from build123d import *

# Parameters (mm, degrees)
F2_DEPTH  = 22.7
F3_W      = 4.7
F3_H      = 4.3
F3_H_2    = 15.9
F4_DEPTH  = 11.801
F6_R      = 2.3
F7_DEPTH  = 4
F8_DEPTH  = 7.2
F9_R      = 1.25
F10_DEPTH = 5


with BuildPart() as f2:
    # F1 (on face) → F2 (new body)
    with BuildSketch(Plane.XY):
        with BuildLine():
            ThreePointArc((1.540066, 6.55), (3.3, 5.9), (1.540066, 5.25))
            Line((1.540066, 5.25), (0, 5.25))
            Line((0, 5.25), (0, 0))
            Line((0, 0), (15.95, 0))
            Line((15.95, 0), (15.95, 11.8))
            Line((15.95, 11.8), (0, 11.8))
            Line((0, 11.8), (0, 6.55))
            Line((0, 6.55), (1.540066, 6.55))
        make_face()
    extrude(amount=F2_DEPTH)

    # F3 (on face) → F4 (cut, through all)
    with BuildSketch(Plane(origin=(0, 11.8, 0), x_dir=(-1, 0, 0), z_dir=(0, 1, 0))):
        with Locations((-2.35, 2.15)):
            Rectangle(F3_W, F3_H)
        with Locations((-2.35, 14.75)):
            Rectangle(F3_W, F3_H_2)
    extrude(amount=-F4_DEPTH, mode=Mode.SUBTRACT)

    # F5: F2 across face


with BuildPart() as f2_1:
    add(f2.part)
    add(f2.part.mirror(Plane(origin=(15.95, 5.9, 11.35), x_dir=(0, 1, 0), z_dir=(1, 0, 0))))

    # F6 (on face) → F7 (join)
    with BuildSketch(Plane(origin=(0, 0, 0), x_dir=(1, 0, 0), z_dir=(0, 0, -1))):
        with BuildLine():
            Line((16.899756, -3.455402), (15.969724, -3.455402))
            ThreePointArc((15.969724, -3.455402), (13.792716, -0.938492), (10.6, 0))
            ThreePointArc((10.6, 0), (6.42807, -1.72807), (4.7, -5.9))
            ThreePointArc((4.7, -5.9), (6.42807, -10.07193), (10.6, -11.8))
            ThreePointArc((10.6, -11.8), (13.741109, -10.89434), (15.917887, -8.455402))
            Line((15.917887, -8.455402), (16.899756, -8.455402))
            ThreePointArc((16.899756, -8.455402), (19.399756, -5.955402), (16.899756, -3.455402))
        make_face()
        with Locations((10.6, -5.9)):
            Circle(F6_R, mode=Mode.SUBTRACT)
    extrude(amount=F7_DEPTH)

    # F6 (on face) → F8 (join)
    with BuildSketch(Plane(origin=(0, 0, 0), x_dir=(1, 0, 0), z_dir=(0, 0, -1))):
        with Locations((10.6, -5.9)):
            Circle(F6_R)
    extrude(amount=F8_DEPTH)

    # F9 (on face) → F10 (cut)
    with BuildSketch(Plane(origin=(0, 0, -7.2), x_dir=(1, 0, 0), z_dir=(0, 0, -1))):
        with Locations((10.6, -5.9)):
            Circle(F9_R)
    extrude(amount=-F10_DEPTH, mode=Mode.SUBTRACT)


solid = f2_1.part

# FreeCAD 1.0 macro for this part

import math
import FreeCAD as App
import Part
import Sketcher
from FreeCAD import Vector
Q = App.Units.Quantity

doc = App.newDocument("Part")
params = doc.addObject("Spreadsheet::Sheet", "Params")
for row, (alias, value) in enumerate([
    ("sketch1_radius", "1 mm"),
    ("sketch1_height", "11.8 mm"),
    ("sketch1_width", "15.95 mm"),
    ("sketch1_height2", "5.25 mm"),
    ("pad1_length", "22.7 mm"),
    ("sketch2_width", "4.7 mm"),
    ("sketch2_height", "4.3 mm"),
    ("sketch2_height2", "15.9 mm"),
    ("sketch3_diameter", "4.6 mm"),
    ("sketch3_radius", "5.9 mm"),
    ("sketch3_radius2", "2.5 mm"),
    ("pad2_length", "4 mm"),
    ("sketch4_diameter", "4.6 mm"),
    ("pad3_length", "7.2 mm"),
    ("sketch5_diameter", "2.5 mm"),
    ("pocket2_length", "5 mm"),
], start=1):
    params.set(f"A{row}", alias)
    params.set(f"B{row}", "=" + value)
    params.setAlias(f"B{row}", alias)

body = doc.addObject("PartDesign::Body", "Body")

sketch1 = body.newObject("Sketcher::SketchObject", "Sketch")
sketch1.AttachmentSupport = (doc.getObject("XY_Plane"), [""])
sketch1.MapMode = "FlatFace"
sketch1.addGeometry([
    Part.ArcOfCircle(Part.Circle(Vector(2.3, 5.9, 0), Vector(0, 0, 1), 1), math.radians(-139.458394), math.radians(139.458394)),
    Part.LineSegment(Vector(1.540066, 5.25, 0), Vector(0, 5.25, 0)),
    Part.LineSegment(Vector(0, 5.25, 0), Vector(0, 0, 0)),
    Part.LineSegment(Vector(0, 0, 0), Vector(15.95, 0, 0)),
    Part.LineSegment(Vector(15.95, 0, 0), Vector(15.95, 11.8, 0)),
    Part.LineSegment(Vector(15.95, 11.8, 0), Vector(0, 11.8, 0)),
    Part.LineSegment(Vector(0, 11.8, 0), Vector(0, 6.55, 0)),
    Part.LineSegment(Vector(0, 6.55, 0), Vector(1.540066, 6.55, 0)),
], False)
sketch1.addConstraint([
    Sketcher.Constraint("Coincident", 0, 1, 1, 1),
    Sketcher.Constraint("Coincident", 1, 2, 2, 1),
    Sketcher.Constraint("Coincident", 2, 2, 3, 1),
    Sketcher.Constraint("Coincident", 3, 2, 4, 1),
    Sketcher.Constraint("Coincident", 4, 2, 5, 1),
    Sketcher.Constraint("Coincident", 5, 2, 6, 1),
    Sketcher.Constraint("Coincident", 6, 2, 7, 1),
    Sketcher.Constraint("Coincident", 7, 2, 0, 2),
    Sketcher.Constraint("Horizontal", 1),
    Sketcher.Constraint("Vertical", 2),
    Sketcher.Constraint("Horizontal", 3),
    Sketcher.Constraint("Vertical", 4),
    Sketcher.Constraint("Horizontal", 5),
    Sketcher.Constraint("Vertical", 6),
    Sketcher.Constraint("Horizontal", 7),
    Sketcher.Constraint("Coincident", 2, 2, -1, 1),
    Sketcher.Constraint("PointOnObject", 5, 2, -2),
    Sketcher.Constraint("Vertical", 0, 1, 7, 2),
    Sketcher.Constraint("Equal", 2, 6),
    Sketcher.Constraint("Radius", 0, Q("1 mm")),
    Sketcher.Constraint("DistanceY", 4, 1, 4, 2, Q("11.8 mm")),
    Sketcher.Constraint("DistanceX", 3, 1, 3, 2, Q("15.95 mm")),
    Sketcher.Constraint("DistanceY", 2, 2, 2, 1, Q("5.25 mm")),
    Sketcher.Constraint("DistanceX", -1, 1, 0, 3, Q("2.3 mm")),
])
sketch1.setExpression("Constraints[19]", "Params.sketch1_radius")
sketch1.setExpression("Constraints[20]", "Params.sketch1_height")
sketch1.setExpression("Constraints[21]", "Params.sketch1_width")
sketch1.setExpression("Constraints[22]", "Params.sketch1_height2")
pad1 = body.newObject("PartDesign::Pad", "Pad")
pad1.Profile = sketch1
pad1.setExpression("Length", "Params.pad1_length")

sketch2 = body.newObject("Sketcher::SketchObject", "Sketch001")
sketch2.AttachmentSupport = (doc.getObject("XZ_Plane"), [""])
sketch2.MapMode = "FlatFace"
sketch2.AttachmentOffset = App.Placement(Vector(0, 0, -11.8), App.Rotation())
sketch2.addGeometry([
    Part.LineSegment(Vector(4.7, 4.3, 0), Vector(4.7, 0, 0)),
    Part.LineSegment(Vector(4.7, 0, 0), Vector(0, 0, 0)),
    Part.LineSegment(Vector(0, 0, 0), Vector(0, 4.3, 0)),
    Part.LineSegment(Vector(0, 4.3, 0), Vector(4.7, 4.3, 0)),
    Part.LineSegment(Vector(4.7, 22.7, 0), Vector(4.7, 6.8, 0)),
    Part.LineSegment(Vector(4.7, 6.8, 0), Vector(0, 6.8, 0)),
    Part.LineSegment(Vector(0, 6.8, 0), Vector(0, 22.7, 0)),
    Part.LineSegment(Vector(0, 22.7, 0), Vector(4.7, 22.7, 0)),
], False)
sketch2.addConstraint([
    Sketcher.Constraint("Coincident", 0, 2, 1, 1),
    Sketcher.Constraint("Coincident", 1, 2, 2, 1),
    Sketcher.Constraint("Coincident", 2, 2, 3, 1),
    Sketcher.Constraint("Coincident", 3, 2, 0, 1),
    Sketcher.Constraint("Coincident", 4, 2, 5, 1),
    Sketcher.Constraint("Coincident", 5, 2, 6, 1),
    Sketcher.Constraint("Coincident", 6, 2, 7, 1),
    Sketcher.Constraint("Coincident", 7, 2, 4, 1),
    Sketcher.Constraint("Vertical", 0),
    Sketcher.Constraint("Horizontal", 1),
    Sketcher.Constraint("Vertical", 2),
    Sketcher.Constraint("Horizontal", 3),
    Sketcher.Constraint("Vertical", 4),
    Sketcher.Constraint("Horizontal", 5),
    Sketcher.Constraint("Vertical", 6),
    Sketcher.Constraint("Horizontal", 7),
    Sketcher.Constraint("Coincident", 1, 2, -1, 1),
    Sketcher.Constraint("PointOnObject", 5, 2, -2),
    Sketcher.Constraint("Vertical", 3, 2, 4, 2),
    Sketcher.Constraint("DistanceX", 1, 2, 1, 1, Q("4.7 mm")),
    Sketcher.Constraint("DistanceY", 0, 2, 0, 1, Q("4.3 mm")),
    Sketcher.Constraint("DistanceY", 4, 2, 4, 1, Q("15.9 mm")),
    Sketcher.Constraint("DistanceY", -1, 1, 4, 2, Q("6.8 mm")),
])
sketch2.setExpression("Constraints[19]", "Params.sketch2_width")
sketch2.setExpression("Constraints[20]", "Params.sketch2_height")
sketch2.setExpression("Constraints[21]", "Params.sketch2_height2")
pocket1 = body.newObject("PartDesign::Pocket", "Pocket")
pocket1.Profile = sketch2
pocket1.Type = "ThroughAll"
pocket1.Reversed = True
body2 = doc.addObject("PartDesign::Body", "Body001")
doc.recompute()

body2.BaseFeature = body
doc.recompute()

mirroring = doc.addObject("Part::Mirroring", "Mirroring")
mirroring.Source = body
mirroring.Base = Vector(15.95, 5.9, 11.35)
mirroring.Normal = Vector(1, 0, 0)
body3 = doc.addObject("PartDesign::Body", "Body002")
body3.BaseFeature = mirroring
boolean = body2.newObject("PartDesign::Boolean", "Boolean")
boolean.Type = "Fuse"
boolean.addObjects([body3])
doc.recompute()

sketch3 = body2.newObject("Sketcher::SketchObject", "Sketch002")
sketch3.AttachmentSupport = (doc.getObject("XY_Plane001"), [""])
sketch3.MapMode = "FlatFace"
sketch3.addGeometry([
    Part.LineSegment(Vector(16.899756, 3.455402, 0), Vector(15.969724, 3.455402, 0)),
    Part.ArcOfCircle(Part.Circle(Vector(10.6, 5.9, 0), Vector(0, 0, 1), 5.9), math.radians(-89.999995), math.radians(-24.477675)),
    Part.ArcOfCircle(Part.Circle(Vector(10.6, 5.9, 0), Vector(0, 0, 1), 5.9), math.radians(-180), math.radians(-90)),
    Part.ArcOfCircle(Part.Circle(Vector(10.6, 5.9, 0), Vector(0, 0, 1), 5.9), math.radians(90), math.radians(180)),
    Part.ArcOfCircle(Part.Circle(Vector(10.599999, 5.899999, 0), Vector(0, 0, 1), 5.900001), math.radians(25.665671), math.radians(89.999993)),
    Part.LineSegment(Vector(15.917887, 8.455402, 0), Vector(16.899756, 8.455402, 0)),
    Part.ArcOfCircle(Part.Circle(Vector(16.899756, 5.955402, 0), Vector(0, 0, 1), 2.5), math.radians(-90), math.radians(90)),
    Part.Circle(Vector(10.6, 5.9, 0), Vector(0, 0, 1), 2.3),
], False)
sketch3.addConstraint([
    Sketcher.Constraint("Coincident", 0, 2, 1, 2),
    Sketcher.Constraint("Tangent", 1, 1, 2, 2),
    Sketcher.Constraint("Tangent", 2, 1, 3, 2),
    Sketcher.Constraint("Tangent", 3, 1, 4, 2),
    Sketcher.Constraint("Coincident", 4, 1, 5, 1),
    Sketcher.Constraint("Tangent", 5, 2, 6, 2),
    Sketcher.Constraint("Tangent", 6, 1, 0, 1),
    Sketcher.Constraint("Horizontal", 0),
    Sketcher.Constraint("Horizontal", 5),
    Sketcher.Constraint("Coincident", 3, 3, 1, 3),
    Sketcher.Constraint("Coincident", 7, 3, 1, 3),
    Sketcher.Constraint("Equal", 3, 4),
    Sketcher.Constraint("PointOnObject", 1, 1, -1),
    Sketcher.Constraint("Horizontal", 7, 3, 2, 1),
    Sketcher.Constraint("Vertical", 7, 3, 1, 1),
    Sketcher.Constraint("Vertical", 1, 1, 3, 1),
    Sketcher.Constraint("Diameter", 7, Q("4.6 mm")),
    Sketcher.Constraint("Radius", 1, Q("5.9 mm")),
    Sketcher.Constraint("Radius", 6, Q("2.5 mm")),
    Sketcher.Constraint("DistanceX", -1, 1, 1, 3, Q("10.6 mm")),
    Sketcher.Constraint("DistanceX", 5, 1, 5, 2, Q("0.981869 mm")),
    Sketcher.Constraint("DistanceY", -1, 1, 0, 2, Q("3.455402 mm")),
])
sketch3.setExpression("Constraints[16]", "Params.sketch3_diameter")
sketch3.setExpression("Constraints[17]", "Params.sketch3_radius")
sketch3.setExpression("Constraints[18]", "Params.sketch3_radius2")
pad2 = body2.newObject("PartDesign::Pad", "Pad001")
pad2.Profile = sketch3
pad2.setExpression("Length", "Params.pad2_length")
pad2.Reversed = True

sketch4 = body2.newObject("Sketcher::SketchObject", "Sketch003")
sketch4.AttachmentSupport = (doc.getObject("XY_Plane001"), [""])
sketch4.MapMode = "FlatFace"
sketch4.addGeometry(Part.Circle(Vector(10.6, 5.9, 0), Vector(0, 0, 1), 2.3), False)
sketch4.addConstraint([
    Sketcher.Constraint("Diameter", 0, Q("4.6 mm")),
    Sketcher.Constraint("DistanceX", -1, 1, 0, 3, Q("10.6 mm")),
    Sketcher.Constraint("DistanceY", -1, 1, 0, 3, Q("5.9 mm")),
])
sketch4.setExpression("Constraints[0]", "Params.sketch4_diameter")
pad3 = body2.newObject("PartDesign::Pad", "Pad002")
pad3.Profile = sketch4
pad3.setExpression("Length", "Params.pad3_length")
pad3.Reversed = True

sketch5 = body2.newObject("Sketcher::SketchObject", "Sketch004")
sketch5.AttachmentSupport = (doc.getObject("XY_Plane001"), [""])
sketch5.MapMode = "FlatFace"
sketch5.AttachmentOffset = App.Placement(Vector(0, 0, -7.2), App.Rotation())
sketch5.addGeometry(Part.Circle(Vector(10.6, 5.9, 0), Vector(0, 0, 1), 1.25), False)
sketch5.addConstraint([
    Sketcher.Constraint("Diameter", 0, Q("2.5 mm")),
    Sketcher.Constraint("DistanceX", -1, 1, 0, 3, Q("10.6 mm")),
    Sketcher.Constraint("DistanceY", -1, 1, 0, 3, Q("5.9 mm")),
])
sketch5.setExpression("Constraints[0]", "Params.sketch5_diameter")
pocket2 = body2.newObject("PartDesign::Pocket", "Pocket001")
pocket2.Profile = sketch5
pocket2.setExpression("Length", "Params.pocket2_length")
pocket2.Reversed = True
mirroring.Visibility = False

doc.recompute()
